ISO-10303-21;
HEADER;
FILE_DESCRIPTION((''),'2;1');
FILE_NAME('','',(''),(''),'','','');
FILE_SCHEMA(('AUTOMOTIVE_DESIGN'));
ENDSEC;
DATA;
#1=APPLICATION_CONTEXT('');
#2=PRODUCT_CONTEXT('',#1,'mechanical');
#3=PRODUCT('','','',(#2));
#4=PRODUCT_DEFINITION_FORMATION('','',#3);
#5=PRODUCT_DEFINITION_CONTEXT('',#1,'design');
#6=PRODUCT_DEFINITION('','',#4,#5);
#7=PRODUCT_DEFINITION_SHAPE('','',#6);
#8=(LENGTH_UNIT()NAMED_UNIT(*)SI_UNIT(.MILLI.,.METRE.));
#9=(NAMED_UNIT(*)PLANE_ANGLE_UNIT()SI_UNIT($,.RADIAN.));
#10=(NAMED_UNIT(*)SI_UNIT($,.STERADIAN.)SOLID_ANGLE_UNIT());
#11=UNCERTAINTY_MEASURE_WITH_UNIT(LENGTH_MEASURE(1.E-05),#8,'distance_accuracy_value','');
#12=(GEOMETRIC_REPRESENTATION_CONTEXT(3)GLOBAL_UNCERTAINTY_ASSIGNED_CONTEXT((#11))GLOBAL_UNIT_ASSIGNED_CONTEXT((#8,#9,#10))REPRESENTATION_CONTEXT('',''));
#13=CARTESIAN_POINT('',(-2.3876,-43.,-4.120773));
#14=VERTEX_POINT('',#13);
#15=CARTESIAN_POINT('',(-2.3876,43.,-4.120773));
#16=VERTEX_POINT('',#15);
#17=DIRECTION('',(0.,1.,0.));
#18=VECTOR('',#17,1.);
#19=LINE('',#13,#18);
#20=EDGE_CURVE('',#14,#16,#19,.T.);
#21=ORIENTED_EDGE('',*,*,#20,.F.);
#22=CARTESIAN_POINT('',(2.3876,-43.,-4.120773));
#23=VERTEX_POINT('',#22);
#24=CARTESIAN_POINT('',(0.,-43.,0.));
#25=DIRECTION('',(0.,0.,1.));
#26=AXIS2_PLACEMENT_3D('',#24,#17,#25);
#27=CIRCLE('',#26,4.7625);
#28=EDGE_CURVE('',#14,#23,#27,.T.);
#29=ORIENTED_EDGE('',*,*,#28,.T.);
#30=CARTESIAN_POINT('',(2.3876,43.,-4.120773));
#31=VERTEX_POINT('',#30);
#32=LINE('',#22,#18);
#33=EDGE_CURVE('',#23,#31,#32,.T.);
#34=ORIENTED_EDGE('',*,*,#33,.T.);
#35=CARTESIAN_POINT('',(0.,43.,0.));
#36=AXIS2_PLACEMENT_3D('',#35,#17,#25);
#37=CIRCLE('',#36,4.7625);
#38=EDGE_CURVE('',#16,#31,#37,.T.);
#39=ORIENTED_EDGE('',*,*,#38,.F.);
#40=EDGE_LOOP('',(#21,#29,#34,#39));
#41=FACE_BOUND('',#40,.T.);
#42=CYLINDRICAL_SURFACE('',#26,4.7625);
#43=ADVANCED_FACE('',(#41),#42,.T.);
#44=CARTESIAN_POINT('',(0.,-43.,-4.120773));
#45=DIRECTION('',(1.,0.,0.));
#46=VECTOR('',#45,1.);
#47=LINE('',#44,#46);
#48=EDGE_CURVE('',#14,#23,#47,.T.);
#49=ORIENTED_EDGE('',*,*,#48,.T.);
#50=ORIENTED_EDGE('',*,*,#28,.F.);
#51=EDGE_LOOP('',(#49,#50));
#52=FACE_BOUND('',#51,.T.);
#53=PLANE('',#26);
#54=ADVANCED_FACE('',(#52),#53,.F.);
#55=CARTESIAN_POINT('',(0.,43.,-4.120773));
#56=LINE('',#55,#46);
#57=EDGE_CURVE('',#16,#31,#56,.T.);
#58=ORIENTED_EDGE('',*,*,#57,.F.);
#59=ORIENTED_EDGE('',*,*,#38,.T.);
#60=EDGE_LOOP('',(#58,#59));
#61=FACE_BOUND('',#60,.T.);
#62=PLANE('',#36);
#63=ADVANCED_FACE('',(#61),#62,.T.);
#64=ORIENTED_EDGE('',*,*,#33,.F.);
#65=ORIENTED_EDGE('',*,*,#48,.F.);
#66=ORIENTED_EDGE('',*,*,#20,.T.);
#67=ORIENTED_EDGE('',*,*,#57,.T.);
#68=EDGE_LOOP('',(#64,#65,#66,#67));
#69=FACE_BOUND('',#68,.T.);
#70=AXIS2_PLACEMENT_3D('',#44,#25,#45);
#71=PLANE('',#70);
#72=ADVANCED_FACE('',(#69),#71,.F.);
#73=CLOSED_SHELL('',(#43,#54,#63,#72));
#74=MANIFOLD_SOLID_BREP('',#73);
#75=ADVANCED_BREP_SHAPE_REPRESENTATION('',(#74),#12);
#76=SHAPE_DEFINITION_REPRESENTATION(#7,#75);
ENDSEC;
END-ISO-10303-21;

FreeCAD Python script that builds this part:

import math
import FreeCAD as App
import Part
import Sketcher
Q = App.Units.Quantity

doc = App.newDocument("Part")
params = doc.addObject("Spreadsheet::Sheet", "Params")
for row, (alias, value) in enumerate([
    ("sketch1_radius", "0.1875 in"),
    ("sketch1_width", "0.188 in"),
    ("pad1_length", "43 mm"),
    ("pad1_length2", "43 mm"),
], start=1):
    params.set(f"A{row}", alias)
    params.set(f"B{row}", "=" + value)
    params.setAlias(f"B{row}", alias)

body = doc.addObject("PartDesign::Body", "Body")

sketch1 = body.newObject("Sketcher::SketchObject", "Sketch")
sketch1.AttachmentSupport = (doc.getObject("XZ_Plane"), [""])
sketch1.MapMode = "FlatFace"
sketch1.addGeometry(Part.LineSegment(App.Vector(2.4, -4.1, 0), App.Vector(-2.4, -4.1, 0)), False)
sketch1.addGeometry(Part.ArcOfCircle(Part.Circle(App.Vector(0, 0, 0), App.Vector(0, 0, 1), 4.8), math.radians(0), math.radians(240)), False)
sketch1.addGeometry(Part.ArcOfCircle(Part.Circle(App.Vector(0, 0, 0), App.Vector(0, 0, 1), 4.8), math.radians(-60), math.radians(0)), False)
sketch1.addConstraint(Sketcher.Constraint("Coincident", 0, 2, 1, 2))
sketch1.addConstraint(Sketcher.Constraint("Tangent", 1, 1, 2, 2))
sketch1.addConstraint(Sketcher.Constraint("Coincident", 2, 1, 0, 1))
sketch1.addConstraint(Sketcher.Constraint("Horizontal", 0))
sketch1.addConstraint(Sketcher.Constraint("Coincident", 1, 3, -1, 1))
sketch1.addConstraint(Sketcher.Constraint("Equal", 1, 2))
sketch1.addConstraint(Sketcher.Constraint("PointOnObject", 1, 1, -1))
sketch1.addConstraint(Sketcher.Constraint("Radius", 1, Q("0.1875 in")))
sketch1.addConstraint(Sketcher.Constraint("DistanceX", 0, 2, 0, 1, Q("0.188 in")))
sketch1.setExpression("Constraints[7]", "Params.sketch1_radius")
sketch1.setExpression("Constraints[8]", "Params.sketch1_width")
pad1 = body.newObject("PartDesign::Pad", "Pad")
pad1.Profile = sketch1
pad1.Type = "TwoLengths"
pad1.setExpression("Length", "Params.pad1_length")
pad1.setExpression("Length2", "Params.pad1_length2")
pad1.Reversed = True

doc.recompute()
